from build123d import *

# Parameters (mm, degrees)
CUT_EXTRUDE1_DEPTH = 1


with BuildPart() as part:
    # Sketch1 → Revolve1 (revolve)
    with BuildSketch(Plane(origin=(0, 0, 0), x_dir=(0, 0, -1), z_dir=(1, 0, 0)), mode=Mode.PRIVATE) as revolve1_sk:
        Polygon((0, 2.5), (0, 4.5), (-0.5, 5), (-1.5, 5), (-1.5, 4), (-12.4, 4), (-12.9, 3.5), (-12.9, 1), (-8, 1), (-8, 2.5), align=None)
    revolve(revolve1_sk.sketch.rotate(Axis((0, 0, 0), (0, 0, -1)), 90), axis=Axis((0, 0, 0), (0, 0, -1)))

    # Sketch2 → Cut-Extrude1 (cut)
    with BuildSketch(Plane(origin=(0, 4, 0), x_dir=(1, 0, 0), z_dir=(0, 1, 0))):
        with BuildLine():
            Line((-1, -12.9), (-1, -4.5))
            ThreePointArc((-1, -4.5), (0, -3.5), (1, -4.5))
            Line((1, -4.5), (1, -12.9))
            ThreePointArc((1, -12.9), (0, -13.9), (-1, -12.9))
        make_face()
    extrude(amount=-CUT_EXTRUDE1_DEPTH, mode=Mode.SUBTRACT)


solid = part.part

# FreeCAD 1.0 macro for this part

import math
import FreeCAD as App
import Part
import Sketcher

V = App.Vector
Q = App.Units.Quantity

doc = App.newDocument("Part")
body = doc.addObject("PartDesign::Body", "Body")

sketch1 = doc.addObject("Sketcher::SketchObject", "Sketch")
body.addObject(sketch1)
sketch1.AttachmentSupport = (doc.YZ_Plane, [""])
sketch1.MapMode = "FlatFace"
sketch1.addGeometry([
    Part.LineSegment(V(2.5, 0, 0), V(4.5, 0, 0)),
    Part.LineSegment(V(4.5, 0, 0), V(5, 0.5, 0)),
    Part.LineSegment(V(5, 0.5, 0), V(5, 1.5, 0)),
    Part.LineSegment(V(5, 1.5, 0), V(4, 1.5, 0)),
    Part.LineSegment(V(4, 1.5, 0), V(4, 12.4, 0)),
    Part.LineSegment(V(4, 12.4, 0), V(3.5, 12.9, 0)),
    Part.LineSegment(V(3.5, 12.9, 0), V(1, 12.9, 0)),
    Part.LineSegment(V(1, 12.9, 0), V(1, 8, 0)),
    Part.LineSegment(V(1, 8, 0), V(2.5, 8, 0)),
    Part.LineSegment(V(2.5, 8, 0), V(2.5, 0, 0)),
], False)
sketch1.addConstraint([
    Sketcher.Constraint("Coincident", 0, 2, 1, 1),
    Sketcher.Constraint("Coincident", 1, 2, 2, 1),
    Sketcher.Constraint("Coincident", 2, 2, 3, 1),
    Sketcher.Constraint("Coincident", 3, 2, 4, 1),
    Sketcher.Constraint("Coincident", 4, 2, 5, 1),
    Sketcher.Constraint("Coincident", 5, 2, 6, 1),
    Sketcher.Constraint("Coincident", 6, 2, 7, 1),
    Sketcher.Constraint("Coincident", 7, 2, 8, 1),
    Sketcher.Constraint("Coincident", 8, 2, 9, 1),
    Sketcher.Constraint("Coincident", 9, 2, 0, 1),
    Sketcher.Constraint("Horizontal", 0),
    Sketcher.Constraint("Vertical", 2),
    Sketcher.Constraint("Horizontal", 3),
    Sketcher.Constraint("Vertical", 4),
    Sketcher.Constraint("Horizontal", 6),
    Sketcher.Constraint("Vertical", 7),
    Sketcher.Constraint("Horizontal", 8),
    Sketcher.Constraint("Vertical", 9),
    Sketcher.Constraint("PointOnObject", 0, 2, -1),
    Sketcher.Constraint("Perpendicular", 1, 5),
    Sketcher.Constraint("Equal", 3, 2),
    Sketcher.Constraint("Equal", 1, 5),
    Sketcher.Constraint("DistanceX", 0, 1, 0, 2, 2.0),
    Sketcher.Constraint("DistanceX", 3, 2, 3, 1, 1.0),
    Sketcher.Constraint("DistanceY", 9, 2, 9, 1, 8.0),
    Sketcher.Constraint("Angle", 1, Q("45 deg")),
    Sketcher.Constraint("DistanceX", 6, 2, 6, 1, 2.5),
    Sketcher.Constraint("DistanceY", 4, 1, 4, 2, 10.9),
    Sketcher.Constraint("DistanceY", 7, 2, 7, 1, 4.9),
    Sketcher.Constraint("DistanceX", -1, 1, 1, 2, 5.0),
])
revolution = doc.addObject("PartDesign::Revolution", "Revolution")
body.addObject(revolution)
revolution.Profile = sketch1
revolution.ReferenceAxis = (sketch1, ["V_Axis"])
revolution.Angle = 360

sketch2 = doc.addObject("Sketcher::SketchObject", "Sketch001")
body.addObject(sketch2)
sketch2.AttachmentSupport = (doc.XZ_Plane, [""])
sketch2.MapMode = "FlatFace"
sketch2.AttachmentOffset = App.Placement(V(0, 0, -4), App.Rotation())
sketch2.addGeometry([
    Part.LineSegment(V(-1, 4.5, 0), V(-1, 12.9, 0)),
    Part.ArcOfCircle(Part.Circle(V(0, 12.9, 0), V(0, 0, 1), 1), math.radians(0), math.radians(180)),
    Part.LineSegment(V(1, 12.9, 0), V(1, 4.5, 0)),
    Part.ArcOfCircle(Part.Circle(V(0, 4.5, 0), V(0, 0, 1), 1), math.radians(180), math.radians(360)),
], False)
sketch2.addConstraint([
    Sketcher.Constraint("Tangent", 0, 2, 1, 2),
    Sketcher.Constraint("Tangent", 1, 1, 2, 1),
    Sketcher.Constraint("Tangent", 2, 2, 3, 2),
    Sketcher.Constraint("Tangent", 3, 1, 0, 1),
    Sketcher.Constraint("Vertical", 0),
    Sketcher.Constraint("Vertical", 2),
    Sketcher.Constraint("PointOnObject", 1, 3, -2),
    Sketcher.Constraint("Radius", 1, 1.0),
    Sketcher.Constraint("DistanceY", 0, 1, 0, 2, 8.4),
    Sketcher.Constraint("DistanceY", -1, 1, 1, 3, 12.9),
])
pocket1 = doc.addObject("PartDesign::Pocket", "Pocket")
body.addObject(pocket1)
pocket1.Profile = sketch2
pocket1.Length = 1
pocket1.Reversed = True

doc.recompute()
